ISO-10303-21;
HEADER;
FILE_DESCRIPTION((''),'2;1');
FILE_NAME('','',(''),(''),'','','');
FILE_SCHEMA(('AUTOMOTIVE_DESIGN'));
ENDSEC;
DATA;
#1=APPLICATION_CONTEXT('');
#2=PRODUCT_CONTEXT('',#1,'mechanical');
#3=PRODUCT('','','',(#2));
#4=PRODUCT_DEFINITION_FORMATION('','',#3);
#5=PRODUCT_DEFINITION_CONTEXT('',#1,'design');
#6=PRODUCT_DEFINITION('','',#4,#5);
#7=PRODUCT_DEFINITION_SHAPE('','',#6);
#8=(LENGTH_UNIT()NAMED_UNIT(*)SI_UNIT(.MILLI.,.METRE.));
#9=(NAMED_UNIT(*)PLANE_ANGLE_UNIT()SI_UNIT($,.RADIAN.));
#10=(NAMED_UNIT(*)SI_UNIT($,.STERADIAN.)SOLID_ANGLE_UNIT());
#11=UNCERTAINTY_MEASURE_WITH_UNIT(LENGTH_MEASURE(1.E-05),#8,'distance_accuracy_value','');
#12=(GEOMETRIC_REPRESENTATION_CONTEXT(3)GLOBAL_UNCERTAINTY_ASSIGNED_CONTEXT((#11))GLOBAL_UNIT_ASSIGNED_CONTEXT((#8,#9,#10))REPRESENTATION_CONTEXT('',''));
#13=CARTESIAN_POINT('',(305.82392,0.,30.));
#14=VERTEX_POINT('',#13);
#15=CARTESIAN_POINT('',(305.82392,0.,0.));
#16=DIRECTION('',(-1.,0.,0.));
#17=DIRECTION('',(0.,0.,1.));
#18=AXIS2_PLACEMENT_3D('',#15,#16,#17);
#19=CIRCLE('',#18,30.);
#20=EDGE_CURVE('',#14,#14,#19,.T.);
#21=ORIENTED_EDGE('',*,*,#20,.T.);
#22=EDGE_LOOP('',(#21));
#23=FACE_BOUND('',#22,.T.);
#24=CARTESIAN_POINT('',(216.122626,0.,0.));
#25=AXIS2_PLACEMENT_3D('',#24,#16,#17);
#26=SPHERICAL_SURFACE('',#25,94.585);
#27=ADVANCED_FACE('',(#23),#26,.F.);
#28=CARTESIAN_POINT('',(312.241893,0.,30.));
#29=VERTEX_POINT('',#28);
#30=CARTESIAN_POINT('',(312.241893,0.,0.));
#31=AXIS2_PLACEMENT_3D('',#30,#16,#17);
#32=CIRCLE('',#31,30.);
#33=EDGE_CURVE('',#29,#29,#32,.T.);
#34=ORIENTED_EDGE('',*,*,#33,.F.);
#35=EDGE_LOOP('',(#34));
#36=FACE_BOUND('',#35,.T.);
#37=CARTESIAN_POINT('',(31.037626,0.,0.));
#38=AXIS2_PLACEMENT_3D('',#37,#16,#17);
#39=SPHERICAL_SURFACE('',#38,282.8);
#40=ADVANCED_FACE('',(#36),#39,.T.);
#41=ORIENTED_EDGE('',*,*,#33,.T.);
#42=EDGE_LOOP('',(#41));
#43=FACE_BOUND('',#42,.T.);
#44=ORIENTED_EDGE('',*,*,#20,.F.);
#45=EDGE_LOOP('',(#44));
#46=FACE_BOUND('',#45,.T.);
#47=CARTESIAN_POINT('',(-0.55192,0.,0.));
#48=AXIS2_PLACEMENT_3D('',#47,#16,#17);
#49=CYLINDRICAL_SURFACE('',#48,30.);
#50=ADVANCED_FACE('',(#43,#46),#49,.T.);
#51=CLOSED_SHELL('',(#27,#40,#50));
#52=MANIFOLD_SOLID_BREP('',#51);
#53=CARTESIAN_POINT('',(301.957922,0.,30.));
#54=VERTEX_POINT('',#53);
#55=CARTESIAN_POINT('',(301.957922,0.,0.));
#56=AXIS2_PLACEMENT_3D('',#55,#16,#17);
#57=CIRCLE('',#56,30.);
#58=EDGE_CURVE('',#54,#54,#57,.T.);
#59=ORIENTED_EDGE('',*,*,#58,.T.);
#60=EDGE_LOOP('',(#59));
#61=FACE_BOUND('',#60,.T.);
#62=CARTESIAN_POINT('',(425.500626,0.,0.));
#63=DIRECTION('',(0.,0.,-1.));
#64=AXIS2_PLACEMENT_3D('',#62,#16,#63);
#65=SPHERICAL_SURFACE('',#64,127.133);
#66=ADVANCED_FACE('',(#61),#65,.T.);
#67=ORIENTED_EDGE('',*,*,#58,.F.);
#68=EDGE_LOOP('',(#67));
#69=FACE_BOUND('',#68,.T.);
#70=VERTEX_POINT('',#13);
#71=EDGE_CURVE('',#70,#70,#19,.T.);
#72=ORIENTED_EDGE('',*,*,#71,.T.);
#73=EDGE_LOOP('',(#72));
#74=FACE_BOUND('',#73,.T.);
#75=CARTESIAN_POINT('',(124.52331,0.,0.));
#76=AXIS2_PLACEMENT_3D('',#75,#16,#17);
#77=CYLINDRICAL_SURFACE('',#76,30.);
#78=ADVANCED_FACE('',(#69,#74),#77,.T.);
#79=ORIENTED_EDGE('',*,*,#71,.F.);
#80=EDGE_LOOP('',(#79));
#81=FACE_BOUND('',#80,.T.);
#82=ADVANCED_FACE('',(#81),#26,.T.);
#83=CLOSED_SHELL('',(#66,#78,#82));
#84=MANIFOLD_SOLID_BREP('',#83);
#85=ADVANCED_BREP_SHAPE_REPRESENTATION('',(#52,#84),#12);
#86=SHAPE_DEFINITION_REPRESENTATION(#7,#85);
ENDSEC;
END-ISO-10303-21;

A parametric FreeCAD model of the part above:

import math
import FreeCAD as App
import Part
import Sketcher

V = App.Vector

doc = App.newDocument("Part")
params = doc.addObject("Spreadsheet::Sheet", "Params")
for row, (alias, value) in enumerate([
    ("sketch1_width", "12.34 mm"),
    ("revolution_angle", "360 deg"),
    ("sketch2_radius", "282.8 mm"),
    ("sketch2_width", "3.13 mm"),
    ("revolution2_angle", "360 deg"),
], start=1):
    params.set(f"A{row}", alias)
    params.set(f"B{row}", "=" + value)
    params.setAlias(f"B{row}", alias)

body = doc.addObject("PartDesign::Body", "Body")

# Sketch on XZ plane
sketch1 = body.newObject("Sketcher::SketchObject", "Sketch")
sketch1.AttachmentSupport = (doc.getObject("XZ_Plane"), [""])
sketch1.MapMode = "FlatFace"
sketch1.addGeometry(Part.ArcOfCircle(Part.Circle(V(425.500626, 0, 0), V(0, 0, 1), 127.133), math.radians(-180), math.radians(-166.350995)), False)
sketch1.addGeometry(Part.LineSegment(V(298.367626, 0, 0), V(310.707626, 0, 0)), False)
sketch1.addGeometry(Part.ArcOfCircle(Part.Circle(V(216.122626, 0, 0), V(0, 0, 1), 94.585), math.radians(-18.492168), math.radians(0)), False)
sketch1.addGeometry(Part.LineSegment(V(305.82392, -30, 0), V(301.957922, -30, 0)), False)
sketch1.addConstraint(Sketcher.Constraint("Coincident", 0, 1, 1, 1))
sketch1.addConstraint(Sketcher.Constraint("Coincident", 1, 2, 2, 2))
sketch1.addConstraint(Sketcher.Constraint("Coincident", 2, 1, 3, 1))
sketch1.addConstraint(Sketcher.Constraint("Coincident", 3, 2, 0, 2))
sketch1.addConstraint(Sketcher.Constraint("Horizontal", 1))
sketch1.addConstraint(Sketcher.Constraint("Horizontal", 3))
sketch1.addConstraint(Sketcher.Constraint("PointOnObject", 0, 3, -1))
sketch1.addConstraint(Sketcher.Constraint("PointOnObject", 2, 3, -1))
sketch1.addConstraint(Sketcher.Constraint("PointOnObject", 0, 1, -1))
sketch1.addConstraint(Sketcher.Constraint("DistanceY", 2, 1, -1, 1, 30.0))
sketch1.addConstraint(Sketcher.Constraint("Radius", 0, 127.133))
sketch1.addConstraint(Sketcher.Constraint("Radius", 2, 94.585))
sketch1.addConstraint(Sketcher.Constraint("DistanceX", 1, 1, 1, 2, 12.34))
sketch1.addConstraint(Sketcher.Constraint("DistanceX", -1, 1, 2, 1, 305.82392))
sketch1.setExpression("Constraints[12]", "Params.sketch1_width")
revolution = body.newObject("PartDesign::Revolution", "Revolution")
revolution.Profile = sketch1
revolution.ReferenceAxis = (sketch1, ["H_Axis"])
revolution.setExpression("Angle", "Params.revolution_angle")
body2 = doc.addObject("PartDesign::Body", "Body001")

# Sketch on XZ plane
sketch2 = body2.newObject("Sketcher::SketchObject", "Sketch001")
sketch2.AttachmentSupport = (doc.getObject("XZ_Plane001"), [""])
sketch2.MapMode = "FlatFace"
sketch2.addGeometry(Part.LineSegment(V(312.241893, -30, 0), V(305.82392, -30, 0)), False)
sketch2.addGeometry(Part.ArcOfCircle(Part.Circle(V(216.122626, 0, 0), V(0, 0, 1), 94.585), math.radians(-18.492168), math.radians(0)), False)
sketch2.addGeometry(Part.LineSegment(V(310.707626, 0, 0), V(313.837626, 0, 0)), False)
sketch2.addGeometry(Part.ArcOfCircle(Part.Circle(V(31.037625, 0, 0), V(0, 0, 1), 282.8), math.radians(-6.089511), math.radians(0)), False)
sketch2.addConstraint(Sketcher.Constraint("Coincident", 0, 2, 1, 1))
sketch2.addConstraint(Sketcher.Constraint("Coincident", 1, 2, 2, 1))
sketch2.addConstraint(Sketcher.Constraint("Coincident", 2, 2, 3, 2))
sketch2.addConstraint(Sketcher.Constraint("Coincident", 3, 1, 0, 1))
sketch2.addConstraint(Sketcher.Constraint("Horizontal", 0))
sketch2.addConstraint(Sketcher.Constraint("Horizontal", 2))
sketch2.addConstraint(Sketcher.Constraint("PointOnObject", 1, 3, -1))
sketch2.addConstraint(Sketcher.Constraint("PointOnObject", 3, 3, -1))
sketch2.addConstraint(Sketcher.Constraint("PointOnObject", 1, 2, -1))
sketch2.addConstraint(Sketcher.Constraint("Radius", 3, 282.8))
sketch2.addConstraint(Sketcher.Constraint("DistanceY", 0, 2, -1, 1, 30.0))
sketch2.addConstraint(Sketcher.Constraint("Radius", 1, 94.585))
sketch2.addConstraint(Sketcher.Constraint("DistanceX", 2, 1, 2, 2, 3.13))
sketch2.addConstraint(Sketcher.Constraint("DistanceX", -1, 1, 0, 2, 305.82392))
sketch2.setExpression("Constraints[9]", "Params.sketch2_radius")
sketch2.setExpression("Constraints[12]", "Params.sketch2_width")
revolution2 = body2.newObject("PartDesign::Revolution", "Revolution001")
revolution2.Profile = sketch2
revolution2.ReferenceAxis = (sketch2, ["H_Axis"])
revolution2.setExpression("Angle", "Params.revolution2_angle")

doc.recompute()
